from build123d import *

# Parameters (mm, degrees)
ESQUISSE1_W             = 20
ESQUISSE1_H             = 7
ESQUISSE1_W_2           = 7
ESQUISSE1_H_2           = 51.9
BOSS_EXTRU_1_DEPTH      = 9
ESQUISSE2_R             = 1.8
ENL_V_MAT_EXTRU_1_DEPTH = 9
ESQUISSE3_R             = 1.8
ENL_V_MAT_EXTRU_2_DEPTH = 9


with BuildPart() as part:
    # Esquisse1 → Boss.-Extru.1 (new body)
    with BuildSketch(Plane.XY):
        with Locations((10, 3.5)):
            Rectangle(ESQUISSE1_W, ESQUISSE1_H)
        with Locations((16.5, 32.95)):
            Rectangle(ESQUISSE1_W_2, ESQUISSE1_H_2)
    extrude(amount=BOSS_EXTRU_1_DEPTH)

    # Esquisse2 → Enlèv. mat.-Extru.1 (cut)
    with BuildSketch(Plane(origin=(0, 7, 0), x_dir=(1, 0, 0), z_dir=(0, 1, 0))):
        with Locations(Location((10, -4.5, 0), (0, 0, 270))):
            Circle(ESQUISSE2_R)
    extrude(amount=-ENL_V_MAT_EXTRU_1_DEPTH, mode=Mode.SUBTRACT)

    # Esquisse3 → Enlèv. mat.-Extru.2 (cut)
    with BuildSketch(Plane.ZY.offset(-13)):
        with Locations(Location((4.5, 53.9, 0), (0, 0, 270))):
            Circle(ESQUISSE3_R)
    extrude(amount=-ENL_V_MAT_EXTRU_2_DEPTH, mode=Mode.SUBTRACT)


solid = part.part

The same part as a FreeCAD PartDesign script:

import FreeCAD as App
import Part
import Sketcher

doc = App.newDocument("Part")
body = doc.addObject("PartDesign::Body", "Body")

sketch1 = doc.addObject("Sketcher::SketchObject", "Sketch")
body.addObject(sketch1)
sketch1.AttachmentSupport = (doc.XY_Plane, [""])
sketch1.MapMode = "FlatFace"
sketch1.addGeometry(Part.LineSegment(App.Vector(0, 7, 0), App.Vector(0, 0, 0)), False)
sketch1.addGeometry(Part.LineSegment(App.Vector(0, 0, 0), App.Vector(20, 0, 0)), False)
sketch1.addGeometry(Part.LineSegment(App.Vector(20, 0, 0), App.Vector(20, 58.9, 0)), False)
sketch1.addGeometry(Part.LineSegment(App.Vector(20, 58.9, 0), App.Vector(13, 58.9, 0)), False)
sketch1.addGeometry(Part.LineSegment(App.Vector(13, 58.9, 0), App.Vector(13, 7, 0)), False)
sketch1.addGeometry(Part.LineSegment(App.Vector(13, 7, 0), App.Vector(0, 7, 0)), False)
sketch1.addConstraint(Sketcher.Constraint("Coincident", 0, 2, 1, 1))
sketch1.addConstraint(Sketcher.Constraint("Coincident", 1, 2, 2, 1))
sketch1.addConstraint(Sketcher.Constraint("Coincident", 2, 2, 3, 1))
sketch1.addConstraint(Sketcher.Constraint("Coincident", 3, 2, 4, 1))
sketch1.addConstraint(Sketcher.Constraint("Coincident", 4, 2, 5, 1))
sketch1.addConstraint(Sketcher.Constraint("Coincident", 5, 2, 0, 1))
sketch1.addConstraint(Sketcher.Constraint("Vertical", 0))
sketch1.addConstraint(Sketcher.Constraint("Horizontal", 1))
sketch1.addConstraint(Sketcher.Constraint("Vertical", 2))
sketch1.addConstraint(Sketcher.Constraint("Horizontal", 3))
sketch1.addConstraint(Sketcher.Constraint("Vertical", 4))
sketch1.addConstraint(Sketcher.Constraint("Horizontal", 5))
sketch1.addConstraint(Sketcher.Constraint("Coincident", 0, 2, -1, 1))
sketch1.addConstraint(Sketcher.Constraint("Equal", 3, 0))
sketch1.addConstraint(Sketcher.Constraint("DistanceX", 1, 1, 1, 2, 20.0))
sketch1.addConstraint(Sketcher.Constraint("DistanceX", 3, 2, 3, 1, 7.0))
sketch1.addConstraint(Sketcher.Constraint("DistanceY", 2, 1, 2, 2, 58.9))
pad1 = doc.addObject("PartDesign::Pad", "Pad")
body.addObject(pad1)
pad1.Profile = sketch1
pad1.Length = 9

sketch2 = doc.addObject("Sketcher::SketchObject", "Sketch001")
body.addObject(sketch2)
sketch2.AttachmentSupport = (doc.XZ_Plane, [""])
sketch2.MapMode = "FlatFace"
sketch2.AttachmentOffset = App.Placement(App.Vector(0, 0, -7), App.Rotation())
sketch2.addGeometry(Part.Circle(App.Vector(10, 4.5, 0), App.Vector(0, 0, 1), 1.8), False)
sketch2.addConstraint(Sketcher.Constraint("Diameter", 0, 3.6))
sketch2.addConstraint(Sketcher.Constraint("DistanceX", -1, 1, 0, 3, 10.0))
sketch2.addConstraint(Sketcher.Constraint("DistanceY", -1, 1, 0, 3, 4.5))
pocket1 = doc.addObject("PartDesign::Pocket", "Pocket")
body.addObject(pocket1)
pocket1.Profile = sketch2
pocket1.Length = 9
pocket1.Reversed = True

sketch3 = doc.addObject("Sketcher::SketchObject", "Sketch002")
body.addObject(sketch3)
sketch3.AttachmentSupport = (doc.YZ_Plane, [""])
sketch3.MapMode = "FlatFace"
sketch3.AttachmentOffset = App.Placement(App.Vector(0, 0, 13), App.Rotation())
sketch3.addGeometry(Part.Circle(App.Vector(53.9, 4.5, 0), App.Vector(0, 0, 1), 1.8), False)
sketch3.addConstraint(Sketcher.Constraint("Diameter", 0, 3.6))
sketch3.addConstraint(Sketcher.Constraint("DistanceX", -1, 1, 0, 3, 53.9))
sketch3.addConstraint(Sketcher.Constraint("DistanceY", -1, 1, 0, 3, 4.5))
pocket2 = doc.addObject("PartDesign::Pocket", "Pocket001")
body.addObject(pocket2)
pocket2.Profile = sketch3
pocket2.Length = 9
pocket2.Reversed = True

doc.recompute()
